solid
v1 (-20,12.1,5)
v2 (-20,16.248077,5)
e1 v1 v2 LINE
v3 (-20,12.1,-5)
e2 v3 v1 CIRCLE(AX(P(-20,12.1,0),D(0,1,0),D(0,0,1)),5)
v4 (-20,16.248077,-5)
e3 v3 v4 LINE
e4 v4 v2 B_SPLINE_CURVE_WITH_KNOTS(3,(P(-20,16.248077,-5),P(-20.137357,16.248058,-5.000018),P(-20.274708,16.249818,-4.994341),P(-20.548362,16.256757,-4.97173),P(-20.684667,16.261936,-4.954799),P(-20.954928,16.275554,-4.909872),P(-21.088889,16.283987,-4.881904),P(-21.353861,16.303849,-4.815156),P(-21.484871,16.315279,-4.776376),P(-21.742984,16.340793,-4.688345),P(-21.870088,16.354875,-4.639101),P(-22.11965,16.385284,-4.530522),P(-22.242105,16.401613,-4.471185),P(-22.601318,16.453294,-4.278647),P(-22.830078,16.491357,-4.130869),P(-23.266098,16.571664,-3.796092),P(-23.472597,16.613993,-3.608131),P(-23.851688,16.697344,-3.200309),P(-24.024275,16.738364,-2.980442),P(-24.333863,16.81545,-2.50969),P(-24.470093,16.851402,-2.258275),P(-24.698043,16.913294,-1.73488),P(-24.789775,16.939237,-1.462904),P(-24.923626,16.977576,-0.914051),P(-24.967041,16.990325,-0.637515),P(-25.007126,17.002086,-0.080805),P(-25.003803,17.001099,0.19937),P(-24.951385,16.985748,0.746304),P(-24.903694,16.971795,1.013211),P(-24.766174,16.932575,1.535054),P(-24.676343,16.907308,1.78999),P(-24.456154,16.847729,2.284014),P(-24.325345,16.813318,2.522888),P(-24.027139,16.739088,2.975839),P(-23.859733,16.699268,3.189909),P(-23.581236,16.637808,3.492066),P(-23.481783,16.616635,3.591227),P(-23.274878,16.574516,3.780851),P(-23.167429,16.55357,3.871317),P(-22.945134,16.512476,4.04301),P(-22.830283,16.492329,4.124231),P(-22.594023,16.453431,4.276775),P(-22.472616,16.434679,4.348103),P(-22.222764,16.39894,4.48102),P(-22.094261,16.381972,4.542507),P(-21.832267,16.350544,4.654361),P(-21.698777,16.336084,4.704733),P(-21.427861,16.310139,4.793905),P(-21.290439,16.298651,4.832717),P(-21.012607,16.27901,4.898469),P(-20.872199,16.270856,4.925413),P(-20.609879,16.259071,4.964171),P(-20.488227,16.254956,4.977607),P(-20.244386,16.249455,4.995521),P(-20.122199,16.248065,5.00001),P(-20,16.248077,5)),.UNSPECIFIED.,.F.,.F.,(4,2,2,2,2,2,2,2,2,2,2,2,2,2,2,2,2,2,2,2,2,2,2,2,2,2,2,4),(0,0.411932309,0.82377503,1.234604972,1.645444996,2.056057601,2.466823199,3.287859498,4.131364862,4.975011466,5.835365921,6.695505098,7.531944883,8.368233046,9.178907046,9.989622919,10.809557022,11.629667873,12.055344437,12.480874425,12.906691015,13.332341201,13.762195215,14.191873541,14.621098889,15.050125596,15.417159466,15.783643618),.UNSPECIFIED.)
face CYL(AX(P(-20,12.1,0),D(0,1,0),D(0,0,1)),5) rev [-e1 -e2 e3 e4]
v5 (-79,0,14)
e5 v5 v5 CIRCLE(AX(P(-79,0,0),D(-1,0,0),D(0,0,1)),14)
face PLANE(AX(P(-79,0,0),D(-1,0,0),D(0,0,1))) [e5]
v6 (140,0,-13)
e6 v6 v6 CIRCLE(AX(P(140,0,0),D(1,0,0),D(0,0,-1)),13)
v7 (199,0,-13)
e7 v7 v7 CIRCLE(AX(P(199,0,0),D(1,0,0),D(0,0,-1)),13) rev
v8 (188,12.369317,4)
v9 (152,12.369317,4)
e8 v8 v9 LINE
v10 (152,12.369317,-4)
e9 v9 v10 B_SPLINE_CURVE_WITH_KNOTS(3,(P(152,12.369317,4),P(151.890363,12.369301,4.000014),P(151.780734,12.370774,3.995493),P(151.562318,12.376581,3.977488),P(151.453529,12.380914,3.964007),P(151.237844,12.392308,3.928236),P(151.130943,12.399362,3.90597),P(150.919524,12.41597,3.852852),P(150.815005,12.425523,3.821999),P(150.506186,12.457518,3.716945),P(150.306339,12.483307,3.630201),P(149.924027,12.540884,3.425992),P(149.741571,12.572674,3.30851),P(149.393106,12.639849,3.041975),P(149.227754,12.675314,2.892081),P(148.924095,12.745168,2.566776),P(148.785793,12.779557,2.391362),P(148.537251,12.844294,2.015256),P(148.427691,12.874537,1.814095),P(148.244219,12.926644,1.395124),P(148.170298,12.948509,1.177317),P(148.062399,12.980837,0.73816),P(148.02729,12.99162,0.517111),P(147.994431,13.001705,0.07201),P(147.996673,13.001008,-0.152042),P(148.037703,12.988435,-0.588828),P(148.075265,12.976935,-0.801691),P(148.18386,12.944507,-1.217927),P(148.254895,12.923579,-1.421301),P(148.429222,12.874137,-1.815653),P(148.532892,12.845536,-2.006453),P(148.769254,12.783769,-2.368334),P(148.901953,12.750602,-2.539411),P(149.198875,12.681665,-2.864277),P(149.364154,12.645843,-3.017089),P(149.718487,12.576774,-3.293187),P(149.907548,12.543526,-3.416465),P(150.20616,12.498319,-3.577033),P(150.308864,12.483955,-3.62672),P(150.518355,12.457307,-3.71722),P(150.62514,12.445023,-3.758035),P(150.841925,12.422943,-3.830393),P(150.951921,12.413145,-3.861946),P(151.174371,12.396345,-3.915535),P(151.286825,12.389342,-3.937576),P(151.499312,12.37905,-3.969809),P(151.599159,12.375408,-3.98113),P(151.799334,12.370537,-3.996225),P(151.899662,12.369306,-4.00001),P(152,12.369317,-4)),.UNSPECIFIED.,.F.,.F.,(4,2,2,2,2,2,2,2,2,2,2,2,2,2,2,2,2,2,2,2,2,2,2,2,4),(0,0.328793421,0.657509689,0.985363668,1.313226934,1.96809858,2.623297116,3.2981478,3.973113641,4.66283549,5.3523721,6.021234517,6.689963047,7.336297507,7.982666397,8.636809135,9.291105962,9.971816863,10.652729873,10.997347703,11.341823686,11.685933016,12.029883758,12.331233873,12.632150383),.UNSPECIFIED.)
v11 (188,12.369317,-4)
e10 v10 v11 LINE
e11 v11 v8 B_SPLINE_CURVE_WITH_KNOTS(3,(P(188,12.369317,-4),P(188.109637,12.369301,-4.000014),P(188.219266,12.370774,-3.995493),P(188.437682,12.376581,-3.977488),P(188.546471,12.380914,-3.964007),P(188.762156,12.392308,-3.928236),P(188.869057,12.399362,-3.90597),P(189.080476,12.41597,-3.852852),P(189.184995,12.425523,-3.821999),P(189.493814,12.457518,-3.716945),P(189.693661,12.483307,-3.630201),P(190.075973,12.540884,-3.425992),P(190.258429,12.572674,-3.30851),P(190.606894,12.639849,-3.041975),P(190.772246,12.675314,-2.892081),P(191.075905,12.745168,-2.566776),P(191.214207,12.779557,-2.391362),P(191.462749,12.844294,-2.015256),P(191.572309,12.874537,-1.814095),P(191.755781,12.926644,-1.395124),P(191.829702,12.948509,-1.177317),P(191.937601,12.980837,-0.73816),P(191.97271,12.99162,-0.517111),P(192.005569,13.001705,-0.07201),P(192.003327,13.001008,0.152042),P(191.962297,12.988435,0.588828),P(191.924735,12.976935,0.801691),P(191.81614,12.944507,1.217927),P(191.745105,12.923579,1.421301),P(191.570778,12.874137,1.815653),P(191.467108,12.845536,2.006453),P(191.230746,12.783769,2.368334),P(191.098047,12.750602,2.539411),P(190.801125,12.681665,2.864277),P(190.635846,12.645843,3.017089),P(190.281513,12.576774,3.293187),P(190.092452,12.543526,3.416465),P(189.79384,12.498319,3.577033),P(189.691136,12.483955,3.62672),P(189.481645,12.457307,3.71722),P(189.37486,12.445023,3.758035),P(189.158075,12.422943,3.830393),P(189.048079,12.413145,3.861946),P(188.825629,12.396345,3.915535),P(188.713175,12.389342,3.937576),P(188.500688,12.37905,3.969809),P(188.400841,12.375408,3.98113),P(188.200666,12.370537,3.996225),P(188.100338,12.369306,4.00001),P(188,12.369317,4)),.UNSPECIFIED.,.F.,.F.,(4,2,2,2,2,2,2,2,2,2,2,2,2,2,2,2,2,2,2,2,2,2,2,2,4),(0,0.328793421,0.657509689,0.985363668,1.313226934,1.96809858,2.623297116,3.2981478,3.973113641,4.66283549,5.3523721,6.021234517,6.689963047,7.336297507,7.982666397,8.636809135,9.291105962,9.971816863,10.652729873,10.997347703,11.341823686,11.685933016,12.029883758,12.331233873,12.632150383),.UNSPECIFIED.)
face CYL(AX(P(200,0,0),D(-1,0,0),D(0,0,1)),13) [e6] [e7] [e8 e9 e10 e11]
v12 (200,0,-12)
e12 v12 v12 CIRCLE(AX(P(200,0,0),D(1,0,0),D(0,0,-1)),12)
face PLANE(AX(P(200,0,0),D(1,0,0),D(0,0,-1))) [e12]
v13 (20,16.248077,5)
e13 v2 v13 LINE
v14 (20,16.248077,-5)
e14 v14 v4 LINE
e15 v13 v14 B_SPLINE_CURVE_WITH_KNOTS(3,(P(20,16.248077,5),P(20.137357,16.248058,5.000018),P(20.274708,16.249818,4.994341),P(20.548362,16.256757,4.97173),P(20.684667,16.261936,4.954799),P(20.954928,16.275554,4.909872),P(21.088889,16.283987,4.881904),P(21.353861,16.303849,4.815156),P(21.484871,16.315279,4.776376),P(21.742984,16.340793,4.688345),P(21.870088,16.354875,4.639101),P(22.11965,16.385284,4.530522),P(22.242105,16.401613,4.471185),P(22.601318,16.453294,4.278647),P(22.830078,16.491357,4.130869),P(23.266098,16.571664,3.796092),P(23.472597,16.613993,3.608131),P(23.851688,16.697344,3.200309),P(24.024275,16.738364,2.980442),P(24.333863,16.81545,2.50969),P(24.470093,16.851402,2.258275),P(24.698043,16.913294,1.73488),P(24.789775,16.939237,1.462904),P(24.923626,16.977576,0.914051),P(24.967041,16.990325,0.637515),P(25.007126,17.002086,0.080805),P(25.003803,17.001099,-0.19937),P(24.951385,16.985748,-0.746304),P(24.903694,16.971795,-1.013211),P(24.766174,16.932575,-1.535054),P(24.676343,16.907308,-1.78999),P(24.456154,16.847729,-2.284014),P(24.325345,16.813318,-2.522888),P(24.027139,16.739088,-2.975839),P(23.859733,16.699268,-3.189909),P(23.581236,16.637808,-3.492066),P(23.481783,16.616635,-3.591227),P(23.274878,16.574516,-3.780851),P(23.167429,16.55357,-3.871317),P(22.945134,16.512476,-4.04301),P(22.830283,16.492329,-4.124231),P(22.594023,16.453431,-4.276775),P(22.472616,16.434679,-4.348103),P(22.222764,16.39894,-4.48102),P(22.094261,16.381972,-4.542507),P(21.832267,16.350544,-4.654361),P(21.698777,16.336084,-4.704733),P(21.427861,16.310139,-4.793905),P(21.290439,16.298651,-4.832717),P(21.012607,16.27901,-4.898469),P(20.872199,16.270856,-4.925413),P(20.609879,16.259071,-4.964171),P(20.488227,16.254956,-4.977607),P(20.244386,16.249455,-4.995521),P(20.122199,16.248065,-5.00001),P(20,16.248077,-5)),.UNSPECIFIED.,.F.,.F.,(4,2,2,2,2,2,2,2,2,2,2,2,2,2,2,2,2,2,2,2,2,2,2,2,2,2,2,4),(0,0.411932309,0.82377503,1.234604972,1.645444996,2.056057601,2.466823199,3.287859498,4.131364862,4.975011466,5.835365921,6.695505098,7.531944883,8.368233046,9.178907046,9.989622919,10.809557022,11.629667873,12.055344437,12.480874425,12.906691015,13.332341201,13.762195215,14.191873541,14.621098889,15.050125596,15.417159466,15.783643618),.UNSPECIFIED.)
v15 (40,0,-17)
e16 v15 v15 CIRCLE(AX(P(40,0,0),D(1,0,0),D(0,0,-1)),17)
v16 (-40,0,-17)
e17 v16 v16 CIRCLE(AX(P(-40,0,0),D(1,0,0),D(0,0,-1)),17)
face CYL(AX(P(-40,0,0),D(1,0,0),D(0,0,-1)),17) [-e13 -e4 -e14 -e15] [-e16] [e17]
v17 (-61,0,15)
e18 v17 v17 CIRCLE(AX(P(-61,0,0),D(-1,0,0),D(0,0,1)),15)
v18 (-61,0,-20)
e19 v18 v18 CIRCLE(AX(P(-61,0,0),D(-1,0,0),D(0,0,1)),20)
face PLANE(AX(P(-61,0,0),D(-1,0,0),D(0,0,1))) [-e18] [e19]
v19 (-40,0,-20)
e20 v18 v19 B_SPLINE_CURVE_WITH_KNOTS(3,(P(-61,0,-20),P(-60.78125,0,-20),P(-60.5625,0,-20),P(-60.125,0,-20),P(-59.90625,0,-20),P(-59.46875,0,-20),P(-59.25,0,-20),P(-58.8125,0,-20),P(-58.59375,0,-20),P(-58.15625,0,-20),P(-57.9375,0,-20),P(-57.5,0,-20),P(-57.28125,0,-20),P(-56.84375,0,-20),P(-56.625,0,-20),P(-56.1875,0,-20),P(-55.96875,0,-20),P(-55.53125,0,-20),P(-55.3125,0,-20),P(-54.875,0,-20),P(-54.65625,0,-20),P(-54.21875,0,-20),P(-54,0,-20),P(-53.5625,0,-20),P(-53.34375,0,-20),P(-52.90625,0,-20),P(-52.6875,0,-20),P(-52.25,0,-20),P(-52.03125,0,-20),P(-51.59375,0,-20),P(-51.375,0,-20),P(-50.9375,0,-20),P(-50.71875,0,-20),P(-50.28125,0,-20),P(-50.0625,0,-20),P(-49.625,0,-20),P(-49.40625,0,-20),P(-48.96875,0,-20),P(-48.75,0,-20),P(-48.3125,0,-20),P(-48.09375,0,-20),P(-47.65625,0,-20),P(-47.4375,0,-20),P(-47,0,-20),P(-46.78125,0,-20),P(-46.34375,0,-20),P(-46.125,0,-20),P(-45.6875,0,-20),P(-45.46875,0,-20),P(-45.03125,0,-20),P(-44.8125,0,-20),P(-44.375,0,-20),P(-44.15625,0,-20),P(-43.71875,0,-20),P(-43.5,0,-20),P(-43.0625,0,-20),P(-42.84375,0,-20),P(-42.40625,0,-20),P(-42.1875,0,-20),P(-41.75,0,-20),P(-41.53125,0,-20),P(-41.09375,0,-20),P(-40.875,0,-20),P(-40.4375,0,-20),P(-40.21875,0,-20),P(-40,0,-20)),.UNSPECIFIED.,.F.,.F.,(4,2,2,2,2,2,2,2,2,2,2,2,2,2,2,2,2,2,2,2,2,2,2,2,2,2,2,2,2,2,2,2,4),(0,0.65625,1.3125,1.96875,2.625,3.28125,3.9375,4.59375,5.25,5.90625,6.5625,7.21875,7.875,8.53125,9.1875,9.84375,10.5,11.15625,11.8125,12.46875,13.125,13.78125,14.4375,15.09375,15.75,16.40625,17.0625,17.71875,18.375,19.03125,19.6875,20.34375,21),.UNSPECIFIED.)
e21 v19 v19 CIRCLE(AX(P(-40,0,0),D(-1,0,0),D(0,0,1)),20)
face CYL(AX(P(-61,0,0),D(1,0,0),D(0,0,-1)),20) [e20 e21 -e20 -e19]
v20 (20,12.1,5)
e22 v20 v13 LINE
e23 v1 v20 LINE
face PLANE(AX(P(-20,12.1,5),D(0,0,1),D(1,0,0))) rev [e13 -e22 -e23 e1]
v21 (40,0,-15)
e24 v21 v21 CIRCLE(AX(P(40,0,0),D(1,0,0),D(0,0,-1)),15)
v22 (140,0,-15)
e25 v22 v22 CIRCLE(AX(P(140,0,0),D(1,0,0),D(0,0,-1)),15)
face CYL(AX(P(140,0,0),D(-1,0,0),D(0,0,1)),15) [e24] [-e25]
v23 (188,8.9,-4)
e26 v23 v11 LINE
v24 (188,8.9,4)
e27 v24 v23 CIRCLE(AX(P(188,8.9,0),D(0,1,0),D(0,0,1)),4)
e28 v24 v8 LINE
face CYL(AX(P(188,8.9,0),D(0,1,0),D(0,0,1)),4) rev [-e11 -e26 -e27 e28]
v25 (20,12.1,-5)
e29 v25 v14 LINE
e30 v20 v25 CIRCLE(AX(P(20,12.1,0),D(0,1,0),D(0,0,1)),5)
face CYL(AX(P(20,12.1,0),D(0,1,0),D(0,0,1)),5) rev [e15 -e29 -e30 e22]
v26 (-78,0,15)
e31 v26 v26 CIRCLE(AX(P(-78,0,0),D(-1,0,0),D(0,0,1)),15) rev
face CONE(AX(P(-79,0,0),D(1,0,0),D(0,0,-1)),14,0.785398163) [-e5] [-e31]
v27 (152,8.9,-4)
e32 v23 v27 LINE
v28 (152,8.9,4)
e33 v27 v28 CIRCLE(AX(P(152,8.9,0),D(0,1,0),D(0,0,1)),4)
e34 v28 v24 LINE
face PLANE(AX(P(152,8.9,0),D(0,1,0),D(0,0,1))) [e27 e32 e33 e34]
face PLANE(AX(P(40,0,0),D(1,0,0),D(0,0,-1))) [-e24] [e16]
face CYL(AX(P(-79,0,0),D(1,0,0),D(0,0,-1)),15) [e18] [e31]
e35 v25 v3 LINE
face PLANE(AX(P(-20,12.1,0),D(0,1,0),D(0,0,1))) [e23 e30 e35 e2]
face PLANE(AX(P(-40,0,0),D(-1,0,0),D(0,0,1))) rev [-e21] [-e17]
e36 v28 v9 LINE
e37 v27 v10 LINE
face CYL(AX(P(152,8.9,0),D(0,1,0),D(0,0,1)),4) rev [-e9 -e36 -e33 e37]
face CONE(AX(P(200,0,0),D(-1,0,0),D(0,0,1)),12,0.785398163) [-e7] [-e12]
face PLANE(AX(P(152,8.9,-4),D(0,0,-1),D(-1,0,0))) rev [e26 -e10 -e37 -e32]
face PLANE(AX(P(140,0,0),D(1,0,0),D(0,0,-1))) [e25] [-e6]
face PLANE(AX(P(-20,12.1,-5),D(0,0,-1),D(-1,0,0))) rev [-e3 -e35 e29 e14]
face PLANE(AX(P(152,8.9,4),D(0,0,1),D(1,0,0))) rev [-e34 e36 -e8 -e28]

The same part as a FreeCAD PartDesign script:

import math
import FreeCAD as App
import Part
import Sketcher

V = App.Vector


def edges_at(feature, points):
    """Names of the edges that pass closest to the given points."""
    edges = feature.Shape.Edges
    near = lambda p: min(range(len(edges)), key=lambda i: edges[i].distToShape(Part.Vertex(*p))[0])
    return sorted({f"Edge{near(p) + 1}" for p in points})

doc = App.newDocument("Part")
body = doc.addObject("PartDesign::Body", "Body")

# Sketch on YZ plane
sketch1 = doc.addObject("Sketcher::SketchObject", "Sketch")
body.addObject(sketch1)
sketch1.AttachmentSupport = (doc.YZ_Plane, [""])
sketch1.MapMode = "FlatFace"
sketch1.addGeometry(Part.Circle(V(0, 0, 0), V(0, 0, 1), 17), False)
sketch1.addConstraint([
    Sketcher.Constraint("Coincident", 0, 3, -1, 1),
    Sketcher.Constraint("Diameter", 0, 34.0),
])
pad1 = doc.addObject("PartDesign::Pad", "Pad")
body.addObject(pad1)
pad1.Profile = sketch1
pad1.Type = "TwoLengths"
pad1.Length = 40
pad1.Length2 = 40

# Sketch on XZ plane
sketch2 = doc.addObject("Sketcher::SketchObject", "Sketch001")
body.addObject(sketch2)
sketch2.AttachmentSupport = (doc.XZ_Plane, [""])
sketch2.MapMode = "FlatFace"
sketch2.AttachmentOffset = App.Placement(V(0, 0, -17), App.Rotation())
sketch2.addGeometry([
    Part.LineSegment(V(20, -5, 0), V(-20, -5, 0)),
    Part.ArcOfCircle(Part.Circle(V(-20, 0, 0), V(0, 0, 1), 5), math.radians(90), math.radians(270)),
    Part.LineSegment(V(-20, 5, 0), V(20, 5, 0)),
    Part.ArcOfCircle(Part.Circle(V(20, 0, 0), V(0, 0, 1), 5), math.radians(-90), math.radians(90)),
], False)
sketch2.addConstraint([
    Sketcher.Constraint("Tangent", 0, 2, 1, 2),
    Sketcher.Constraint("Tangent", 1, 1, 2, 1),
    Sketcher.Constraint("Tangent", 2, 2, 3, 2),
    Sketcher.Constraint("Tangent", 3, 1, 0, 1),
    Sketcher.Constraint("Horizontal", 0),
    Sketcher.Constraint("Horizontal", 2),
    Sketcher.Constraint("Symmetric", 1, 3, 3, 3, -1, 1),
    Sketcher.Constraint("Radius", 1, 5.0),
    Sketcher.Constraint("DistanceX", 0, 2, 0, 1, 40.0),
])
pocket1 = doc.addObject("PartDesign::Pocket", "Pocket")
body.addObject(pocket1)
pocket1.Profile = sketch2
pocket1.Length = 4.9
pocket1.Reversed = True

# Sketch on YZ plane
sketch3 = doc.addObject("Sketcher::SketchObject", "Sketch002")
body.addObject(sketch3)
sketch3.AttachmentSupport = (doc.YZ_Plane, [""])
sketch3.MapMode = "FlatFace"
sketch3.AttachmentOffset = App.Placement(V(0, 0, -40), App.Rotation())
sketch3.addGeometry(Part.Circle(V(0, 0, 0), V(0, 0, 1), 20), False)
sketch3.addConstraint([
    Sketcher.Constraint("Coincident", 0, 3, -1, 1),
    Sketcher.Constraint("Diameter", 0, 40.0),
])
pad2 = doc.addObject("PartDesign::Pad", "Pad001")
body.addObject(pad2)
pad2.Profile = sketch3
pad2.Length = 21
pad2.Reversed = True

# Sketch on YZ plane
sketch4 = doc.addObject("Sketcher::SketchObject", "Sketch003")
body.addObject(sketch4)
sketch4.AttachmentSupport = (doc.YZ_Plane, [""])
sketch4.MapMode = "FlatFace"
sketch4.AttachmentOffset = App.Placement(V(0, 0, -61), App.Rotation())
sketch4.addGeometry(Part.Circle(V(0, 0, 0), V(0, 0, 1), 15), False)
sketch4.addConstraint([
    Sketcher.Constraint("Coincident", 0, 3, -1, 1),
    Sketcher.Constraint("Diameter", 0, 30.0),
])
pad3 = doc.addObject("PartDesign::Pad", "Pad002")
body.addObject(pad3)
pad3.Profile = sketch4
pad3.Length = 18
pad3.Reversed = True
doc.recompute()

chamfer = doc.addObject("PartDesign::Chamfer", "Chamfer")
body.addObject(chamfer)
chamfer.Base = (pad3, edges_at(pad3, [(-79, 0, -15)]))
chamfer.Size = 1

# Sketch on YZ plane
sketch5 = doc.addObject("Sketcher::SketchObject", "Sketch004")
body.addObject(sketch5)
sketch5.AttachmentSupport = (doc.YZ_Plane, [""])
sketch5.MapMode = "FlatFace"
sketch5.AttachmentOffset = App.Placement(V(0, 0, 140), App.Rotation())
sketch5.addGeometry(Part.Circle(V(0, 0, 0), V(0, 0, 1), 15), False)
sketch5.addConstraint([
    Sketcher.Constraint("Coincident", 0, 3, -1, 1),
    Sketcher.Constraint("Diameter", 0, 30.0),
])
pad4 = doc.addObject("PartDesign::Pad", "Pad003")
body.addObject(pad4)
pad4.Profile = sketch5
pad4.Length = 100
pad4.Reversed = True

# Sketch on YZ plane
sketch6 = doc.addObject("Sketcher::SketchObject", "Sketch005")
body.addObject(sketch6)
sketch6.AttachmentSupport = (doc.YZ_Plane, [""])
sketch6.MapMode = "FlatFace"
sketch6.AttachmentOffset = App.Placement(V(0, 0, 140), App.Rotation())
sketch6.addGeometry(Part.Circle(V(0, 0, 0), V(0, 0, 1), 13), False)
sketch6.addConstraint([
    Sketcher.Constraint("Coincident", 0, 3, -1, 1),
    Sketcher.Constraint("Diameter", 0, 26.0),
])
pad5 = doc.addObject("PartDesign::Pad", "Pad004")
body.addObject(pad5)
pad5.Profile = sketch6
pad5.Length = 60

# Sketch on XZ plane
sketch7 = doc.addObject("Sketcher::SketchObject", "Sketch006")
body.addObject(sketch7)
sketch7.AttachmentSupport = (doc.XZ_Plane, [""])
sketch7.MapMode = "FlatFace"
sketch7.AttachmentOffset = App.Placement(V(0, 0, -13), App.Rotation())
sketch7.addGeometry([
    Part.LineSegment(V(188, -4, 0), V(152, -4, 0)),
    Part.ArcOfCircle(Part.Circle(V(152, 0, 0), V(0, 0, 1), 4), math.radians(90), math.radians(270)),
    Part.LineSegment(V(152, 4, 0), V(188, 4, 0)),
    Part.ArcOfCircle(Part.Circle(V(188, 0, 0), V(0, 0, 1), 4), math.radians(-90), math.radians(90)),
], False)
sketch7.addConstraint([
    Sketcher.Constraint("Tangent", 0, 2, 1, 2),
    Sketcher.Constraint("Tangent", 1, 1, 2, 1),
    Sketcher.Constraint("Tangent", 2, 2, 3, 2),
    Sketcher.Constraint("Tangent", 3, 1, 0, 1),
    Sketcher.Constraint("Horizontal", 0),
    Sketcher.Constraint("Horizontal", 2),
    Sketcher.Constraint("PointOnObject", 1, 3, -1),
    Sketcher.Constraint("Radius", 1, 4.0),
    Sketcher.Constraint("DistanceX", 0, 2, 0, 1, 36.0),
    Sketcher.Constraint("DistanceX", -1, 1, 1, 3, 152.0),
])
pocket2 = doc.addObject("PartDesign::Pocket", "Pocket001")
body.addObject(pocket2)
pocket2.Profile = sketch7
pocket2.Length = 4.1
pocket2.Reversed = True
doc.recompute()

chamfer2 = doc.addObject("PartDesign::Chamfer", "Chamfer001")
body.addObject(chamfer2)
chamfer2.Base = (pocket2, edges_at(pocket2, [(200, 0, 13)]))
chamfer2.Size = 1

doc.recompute()
